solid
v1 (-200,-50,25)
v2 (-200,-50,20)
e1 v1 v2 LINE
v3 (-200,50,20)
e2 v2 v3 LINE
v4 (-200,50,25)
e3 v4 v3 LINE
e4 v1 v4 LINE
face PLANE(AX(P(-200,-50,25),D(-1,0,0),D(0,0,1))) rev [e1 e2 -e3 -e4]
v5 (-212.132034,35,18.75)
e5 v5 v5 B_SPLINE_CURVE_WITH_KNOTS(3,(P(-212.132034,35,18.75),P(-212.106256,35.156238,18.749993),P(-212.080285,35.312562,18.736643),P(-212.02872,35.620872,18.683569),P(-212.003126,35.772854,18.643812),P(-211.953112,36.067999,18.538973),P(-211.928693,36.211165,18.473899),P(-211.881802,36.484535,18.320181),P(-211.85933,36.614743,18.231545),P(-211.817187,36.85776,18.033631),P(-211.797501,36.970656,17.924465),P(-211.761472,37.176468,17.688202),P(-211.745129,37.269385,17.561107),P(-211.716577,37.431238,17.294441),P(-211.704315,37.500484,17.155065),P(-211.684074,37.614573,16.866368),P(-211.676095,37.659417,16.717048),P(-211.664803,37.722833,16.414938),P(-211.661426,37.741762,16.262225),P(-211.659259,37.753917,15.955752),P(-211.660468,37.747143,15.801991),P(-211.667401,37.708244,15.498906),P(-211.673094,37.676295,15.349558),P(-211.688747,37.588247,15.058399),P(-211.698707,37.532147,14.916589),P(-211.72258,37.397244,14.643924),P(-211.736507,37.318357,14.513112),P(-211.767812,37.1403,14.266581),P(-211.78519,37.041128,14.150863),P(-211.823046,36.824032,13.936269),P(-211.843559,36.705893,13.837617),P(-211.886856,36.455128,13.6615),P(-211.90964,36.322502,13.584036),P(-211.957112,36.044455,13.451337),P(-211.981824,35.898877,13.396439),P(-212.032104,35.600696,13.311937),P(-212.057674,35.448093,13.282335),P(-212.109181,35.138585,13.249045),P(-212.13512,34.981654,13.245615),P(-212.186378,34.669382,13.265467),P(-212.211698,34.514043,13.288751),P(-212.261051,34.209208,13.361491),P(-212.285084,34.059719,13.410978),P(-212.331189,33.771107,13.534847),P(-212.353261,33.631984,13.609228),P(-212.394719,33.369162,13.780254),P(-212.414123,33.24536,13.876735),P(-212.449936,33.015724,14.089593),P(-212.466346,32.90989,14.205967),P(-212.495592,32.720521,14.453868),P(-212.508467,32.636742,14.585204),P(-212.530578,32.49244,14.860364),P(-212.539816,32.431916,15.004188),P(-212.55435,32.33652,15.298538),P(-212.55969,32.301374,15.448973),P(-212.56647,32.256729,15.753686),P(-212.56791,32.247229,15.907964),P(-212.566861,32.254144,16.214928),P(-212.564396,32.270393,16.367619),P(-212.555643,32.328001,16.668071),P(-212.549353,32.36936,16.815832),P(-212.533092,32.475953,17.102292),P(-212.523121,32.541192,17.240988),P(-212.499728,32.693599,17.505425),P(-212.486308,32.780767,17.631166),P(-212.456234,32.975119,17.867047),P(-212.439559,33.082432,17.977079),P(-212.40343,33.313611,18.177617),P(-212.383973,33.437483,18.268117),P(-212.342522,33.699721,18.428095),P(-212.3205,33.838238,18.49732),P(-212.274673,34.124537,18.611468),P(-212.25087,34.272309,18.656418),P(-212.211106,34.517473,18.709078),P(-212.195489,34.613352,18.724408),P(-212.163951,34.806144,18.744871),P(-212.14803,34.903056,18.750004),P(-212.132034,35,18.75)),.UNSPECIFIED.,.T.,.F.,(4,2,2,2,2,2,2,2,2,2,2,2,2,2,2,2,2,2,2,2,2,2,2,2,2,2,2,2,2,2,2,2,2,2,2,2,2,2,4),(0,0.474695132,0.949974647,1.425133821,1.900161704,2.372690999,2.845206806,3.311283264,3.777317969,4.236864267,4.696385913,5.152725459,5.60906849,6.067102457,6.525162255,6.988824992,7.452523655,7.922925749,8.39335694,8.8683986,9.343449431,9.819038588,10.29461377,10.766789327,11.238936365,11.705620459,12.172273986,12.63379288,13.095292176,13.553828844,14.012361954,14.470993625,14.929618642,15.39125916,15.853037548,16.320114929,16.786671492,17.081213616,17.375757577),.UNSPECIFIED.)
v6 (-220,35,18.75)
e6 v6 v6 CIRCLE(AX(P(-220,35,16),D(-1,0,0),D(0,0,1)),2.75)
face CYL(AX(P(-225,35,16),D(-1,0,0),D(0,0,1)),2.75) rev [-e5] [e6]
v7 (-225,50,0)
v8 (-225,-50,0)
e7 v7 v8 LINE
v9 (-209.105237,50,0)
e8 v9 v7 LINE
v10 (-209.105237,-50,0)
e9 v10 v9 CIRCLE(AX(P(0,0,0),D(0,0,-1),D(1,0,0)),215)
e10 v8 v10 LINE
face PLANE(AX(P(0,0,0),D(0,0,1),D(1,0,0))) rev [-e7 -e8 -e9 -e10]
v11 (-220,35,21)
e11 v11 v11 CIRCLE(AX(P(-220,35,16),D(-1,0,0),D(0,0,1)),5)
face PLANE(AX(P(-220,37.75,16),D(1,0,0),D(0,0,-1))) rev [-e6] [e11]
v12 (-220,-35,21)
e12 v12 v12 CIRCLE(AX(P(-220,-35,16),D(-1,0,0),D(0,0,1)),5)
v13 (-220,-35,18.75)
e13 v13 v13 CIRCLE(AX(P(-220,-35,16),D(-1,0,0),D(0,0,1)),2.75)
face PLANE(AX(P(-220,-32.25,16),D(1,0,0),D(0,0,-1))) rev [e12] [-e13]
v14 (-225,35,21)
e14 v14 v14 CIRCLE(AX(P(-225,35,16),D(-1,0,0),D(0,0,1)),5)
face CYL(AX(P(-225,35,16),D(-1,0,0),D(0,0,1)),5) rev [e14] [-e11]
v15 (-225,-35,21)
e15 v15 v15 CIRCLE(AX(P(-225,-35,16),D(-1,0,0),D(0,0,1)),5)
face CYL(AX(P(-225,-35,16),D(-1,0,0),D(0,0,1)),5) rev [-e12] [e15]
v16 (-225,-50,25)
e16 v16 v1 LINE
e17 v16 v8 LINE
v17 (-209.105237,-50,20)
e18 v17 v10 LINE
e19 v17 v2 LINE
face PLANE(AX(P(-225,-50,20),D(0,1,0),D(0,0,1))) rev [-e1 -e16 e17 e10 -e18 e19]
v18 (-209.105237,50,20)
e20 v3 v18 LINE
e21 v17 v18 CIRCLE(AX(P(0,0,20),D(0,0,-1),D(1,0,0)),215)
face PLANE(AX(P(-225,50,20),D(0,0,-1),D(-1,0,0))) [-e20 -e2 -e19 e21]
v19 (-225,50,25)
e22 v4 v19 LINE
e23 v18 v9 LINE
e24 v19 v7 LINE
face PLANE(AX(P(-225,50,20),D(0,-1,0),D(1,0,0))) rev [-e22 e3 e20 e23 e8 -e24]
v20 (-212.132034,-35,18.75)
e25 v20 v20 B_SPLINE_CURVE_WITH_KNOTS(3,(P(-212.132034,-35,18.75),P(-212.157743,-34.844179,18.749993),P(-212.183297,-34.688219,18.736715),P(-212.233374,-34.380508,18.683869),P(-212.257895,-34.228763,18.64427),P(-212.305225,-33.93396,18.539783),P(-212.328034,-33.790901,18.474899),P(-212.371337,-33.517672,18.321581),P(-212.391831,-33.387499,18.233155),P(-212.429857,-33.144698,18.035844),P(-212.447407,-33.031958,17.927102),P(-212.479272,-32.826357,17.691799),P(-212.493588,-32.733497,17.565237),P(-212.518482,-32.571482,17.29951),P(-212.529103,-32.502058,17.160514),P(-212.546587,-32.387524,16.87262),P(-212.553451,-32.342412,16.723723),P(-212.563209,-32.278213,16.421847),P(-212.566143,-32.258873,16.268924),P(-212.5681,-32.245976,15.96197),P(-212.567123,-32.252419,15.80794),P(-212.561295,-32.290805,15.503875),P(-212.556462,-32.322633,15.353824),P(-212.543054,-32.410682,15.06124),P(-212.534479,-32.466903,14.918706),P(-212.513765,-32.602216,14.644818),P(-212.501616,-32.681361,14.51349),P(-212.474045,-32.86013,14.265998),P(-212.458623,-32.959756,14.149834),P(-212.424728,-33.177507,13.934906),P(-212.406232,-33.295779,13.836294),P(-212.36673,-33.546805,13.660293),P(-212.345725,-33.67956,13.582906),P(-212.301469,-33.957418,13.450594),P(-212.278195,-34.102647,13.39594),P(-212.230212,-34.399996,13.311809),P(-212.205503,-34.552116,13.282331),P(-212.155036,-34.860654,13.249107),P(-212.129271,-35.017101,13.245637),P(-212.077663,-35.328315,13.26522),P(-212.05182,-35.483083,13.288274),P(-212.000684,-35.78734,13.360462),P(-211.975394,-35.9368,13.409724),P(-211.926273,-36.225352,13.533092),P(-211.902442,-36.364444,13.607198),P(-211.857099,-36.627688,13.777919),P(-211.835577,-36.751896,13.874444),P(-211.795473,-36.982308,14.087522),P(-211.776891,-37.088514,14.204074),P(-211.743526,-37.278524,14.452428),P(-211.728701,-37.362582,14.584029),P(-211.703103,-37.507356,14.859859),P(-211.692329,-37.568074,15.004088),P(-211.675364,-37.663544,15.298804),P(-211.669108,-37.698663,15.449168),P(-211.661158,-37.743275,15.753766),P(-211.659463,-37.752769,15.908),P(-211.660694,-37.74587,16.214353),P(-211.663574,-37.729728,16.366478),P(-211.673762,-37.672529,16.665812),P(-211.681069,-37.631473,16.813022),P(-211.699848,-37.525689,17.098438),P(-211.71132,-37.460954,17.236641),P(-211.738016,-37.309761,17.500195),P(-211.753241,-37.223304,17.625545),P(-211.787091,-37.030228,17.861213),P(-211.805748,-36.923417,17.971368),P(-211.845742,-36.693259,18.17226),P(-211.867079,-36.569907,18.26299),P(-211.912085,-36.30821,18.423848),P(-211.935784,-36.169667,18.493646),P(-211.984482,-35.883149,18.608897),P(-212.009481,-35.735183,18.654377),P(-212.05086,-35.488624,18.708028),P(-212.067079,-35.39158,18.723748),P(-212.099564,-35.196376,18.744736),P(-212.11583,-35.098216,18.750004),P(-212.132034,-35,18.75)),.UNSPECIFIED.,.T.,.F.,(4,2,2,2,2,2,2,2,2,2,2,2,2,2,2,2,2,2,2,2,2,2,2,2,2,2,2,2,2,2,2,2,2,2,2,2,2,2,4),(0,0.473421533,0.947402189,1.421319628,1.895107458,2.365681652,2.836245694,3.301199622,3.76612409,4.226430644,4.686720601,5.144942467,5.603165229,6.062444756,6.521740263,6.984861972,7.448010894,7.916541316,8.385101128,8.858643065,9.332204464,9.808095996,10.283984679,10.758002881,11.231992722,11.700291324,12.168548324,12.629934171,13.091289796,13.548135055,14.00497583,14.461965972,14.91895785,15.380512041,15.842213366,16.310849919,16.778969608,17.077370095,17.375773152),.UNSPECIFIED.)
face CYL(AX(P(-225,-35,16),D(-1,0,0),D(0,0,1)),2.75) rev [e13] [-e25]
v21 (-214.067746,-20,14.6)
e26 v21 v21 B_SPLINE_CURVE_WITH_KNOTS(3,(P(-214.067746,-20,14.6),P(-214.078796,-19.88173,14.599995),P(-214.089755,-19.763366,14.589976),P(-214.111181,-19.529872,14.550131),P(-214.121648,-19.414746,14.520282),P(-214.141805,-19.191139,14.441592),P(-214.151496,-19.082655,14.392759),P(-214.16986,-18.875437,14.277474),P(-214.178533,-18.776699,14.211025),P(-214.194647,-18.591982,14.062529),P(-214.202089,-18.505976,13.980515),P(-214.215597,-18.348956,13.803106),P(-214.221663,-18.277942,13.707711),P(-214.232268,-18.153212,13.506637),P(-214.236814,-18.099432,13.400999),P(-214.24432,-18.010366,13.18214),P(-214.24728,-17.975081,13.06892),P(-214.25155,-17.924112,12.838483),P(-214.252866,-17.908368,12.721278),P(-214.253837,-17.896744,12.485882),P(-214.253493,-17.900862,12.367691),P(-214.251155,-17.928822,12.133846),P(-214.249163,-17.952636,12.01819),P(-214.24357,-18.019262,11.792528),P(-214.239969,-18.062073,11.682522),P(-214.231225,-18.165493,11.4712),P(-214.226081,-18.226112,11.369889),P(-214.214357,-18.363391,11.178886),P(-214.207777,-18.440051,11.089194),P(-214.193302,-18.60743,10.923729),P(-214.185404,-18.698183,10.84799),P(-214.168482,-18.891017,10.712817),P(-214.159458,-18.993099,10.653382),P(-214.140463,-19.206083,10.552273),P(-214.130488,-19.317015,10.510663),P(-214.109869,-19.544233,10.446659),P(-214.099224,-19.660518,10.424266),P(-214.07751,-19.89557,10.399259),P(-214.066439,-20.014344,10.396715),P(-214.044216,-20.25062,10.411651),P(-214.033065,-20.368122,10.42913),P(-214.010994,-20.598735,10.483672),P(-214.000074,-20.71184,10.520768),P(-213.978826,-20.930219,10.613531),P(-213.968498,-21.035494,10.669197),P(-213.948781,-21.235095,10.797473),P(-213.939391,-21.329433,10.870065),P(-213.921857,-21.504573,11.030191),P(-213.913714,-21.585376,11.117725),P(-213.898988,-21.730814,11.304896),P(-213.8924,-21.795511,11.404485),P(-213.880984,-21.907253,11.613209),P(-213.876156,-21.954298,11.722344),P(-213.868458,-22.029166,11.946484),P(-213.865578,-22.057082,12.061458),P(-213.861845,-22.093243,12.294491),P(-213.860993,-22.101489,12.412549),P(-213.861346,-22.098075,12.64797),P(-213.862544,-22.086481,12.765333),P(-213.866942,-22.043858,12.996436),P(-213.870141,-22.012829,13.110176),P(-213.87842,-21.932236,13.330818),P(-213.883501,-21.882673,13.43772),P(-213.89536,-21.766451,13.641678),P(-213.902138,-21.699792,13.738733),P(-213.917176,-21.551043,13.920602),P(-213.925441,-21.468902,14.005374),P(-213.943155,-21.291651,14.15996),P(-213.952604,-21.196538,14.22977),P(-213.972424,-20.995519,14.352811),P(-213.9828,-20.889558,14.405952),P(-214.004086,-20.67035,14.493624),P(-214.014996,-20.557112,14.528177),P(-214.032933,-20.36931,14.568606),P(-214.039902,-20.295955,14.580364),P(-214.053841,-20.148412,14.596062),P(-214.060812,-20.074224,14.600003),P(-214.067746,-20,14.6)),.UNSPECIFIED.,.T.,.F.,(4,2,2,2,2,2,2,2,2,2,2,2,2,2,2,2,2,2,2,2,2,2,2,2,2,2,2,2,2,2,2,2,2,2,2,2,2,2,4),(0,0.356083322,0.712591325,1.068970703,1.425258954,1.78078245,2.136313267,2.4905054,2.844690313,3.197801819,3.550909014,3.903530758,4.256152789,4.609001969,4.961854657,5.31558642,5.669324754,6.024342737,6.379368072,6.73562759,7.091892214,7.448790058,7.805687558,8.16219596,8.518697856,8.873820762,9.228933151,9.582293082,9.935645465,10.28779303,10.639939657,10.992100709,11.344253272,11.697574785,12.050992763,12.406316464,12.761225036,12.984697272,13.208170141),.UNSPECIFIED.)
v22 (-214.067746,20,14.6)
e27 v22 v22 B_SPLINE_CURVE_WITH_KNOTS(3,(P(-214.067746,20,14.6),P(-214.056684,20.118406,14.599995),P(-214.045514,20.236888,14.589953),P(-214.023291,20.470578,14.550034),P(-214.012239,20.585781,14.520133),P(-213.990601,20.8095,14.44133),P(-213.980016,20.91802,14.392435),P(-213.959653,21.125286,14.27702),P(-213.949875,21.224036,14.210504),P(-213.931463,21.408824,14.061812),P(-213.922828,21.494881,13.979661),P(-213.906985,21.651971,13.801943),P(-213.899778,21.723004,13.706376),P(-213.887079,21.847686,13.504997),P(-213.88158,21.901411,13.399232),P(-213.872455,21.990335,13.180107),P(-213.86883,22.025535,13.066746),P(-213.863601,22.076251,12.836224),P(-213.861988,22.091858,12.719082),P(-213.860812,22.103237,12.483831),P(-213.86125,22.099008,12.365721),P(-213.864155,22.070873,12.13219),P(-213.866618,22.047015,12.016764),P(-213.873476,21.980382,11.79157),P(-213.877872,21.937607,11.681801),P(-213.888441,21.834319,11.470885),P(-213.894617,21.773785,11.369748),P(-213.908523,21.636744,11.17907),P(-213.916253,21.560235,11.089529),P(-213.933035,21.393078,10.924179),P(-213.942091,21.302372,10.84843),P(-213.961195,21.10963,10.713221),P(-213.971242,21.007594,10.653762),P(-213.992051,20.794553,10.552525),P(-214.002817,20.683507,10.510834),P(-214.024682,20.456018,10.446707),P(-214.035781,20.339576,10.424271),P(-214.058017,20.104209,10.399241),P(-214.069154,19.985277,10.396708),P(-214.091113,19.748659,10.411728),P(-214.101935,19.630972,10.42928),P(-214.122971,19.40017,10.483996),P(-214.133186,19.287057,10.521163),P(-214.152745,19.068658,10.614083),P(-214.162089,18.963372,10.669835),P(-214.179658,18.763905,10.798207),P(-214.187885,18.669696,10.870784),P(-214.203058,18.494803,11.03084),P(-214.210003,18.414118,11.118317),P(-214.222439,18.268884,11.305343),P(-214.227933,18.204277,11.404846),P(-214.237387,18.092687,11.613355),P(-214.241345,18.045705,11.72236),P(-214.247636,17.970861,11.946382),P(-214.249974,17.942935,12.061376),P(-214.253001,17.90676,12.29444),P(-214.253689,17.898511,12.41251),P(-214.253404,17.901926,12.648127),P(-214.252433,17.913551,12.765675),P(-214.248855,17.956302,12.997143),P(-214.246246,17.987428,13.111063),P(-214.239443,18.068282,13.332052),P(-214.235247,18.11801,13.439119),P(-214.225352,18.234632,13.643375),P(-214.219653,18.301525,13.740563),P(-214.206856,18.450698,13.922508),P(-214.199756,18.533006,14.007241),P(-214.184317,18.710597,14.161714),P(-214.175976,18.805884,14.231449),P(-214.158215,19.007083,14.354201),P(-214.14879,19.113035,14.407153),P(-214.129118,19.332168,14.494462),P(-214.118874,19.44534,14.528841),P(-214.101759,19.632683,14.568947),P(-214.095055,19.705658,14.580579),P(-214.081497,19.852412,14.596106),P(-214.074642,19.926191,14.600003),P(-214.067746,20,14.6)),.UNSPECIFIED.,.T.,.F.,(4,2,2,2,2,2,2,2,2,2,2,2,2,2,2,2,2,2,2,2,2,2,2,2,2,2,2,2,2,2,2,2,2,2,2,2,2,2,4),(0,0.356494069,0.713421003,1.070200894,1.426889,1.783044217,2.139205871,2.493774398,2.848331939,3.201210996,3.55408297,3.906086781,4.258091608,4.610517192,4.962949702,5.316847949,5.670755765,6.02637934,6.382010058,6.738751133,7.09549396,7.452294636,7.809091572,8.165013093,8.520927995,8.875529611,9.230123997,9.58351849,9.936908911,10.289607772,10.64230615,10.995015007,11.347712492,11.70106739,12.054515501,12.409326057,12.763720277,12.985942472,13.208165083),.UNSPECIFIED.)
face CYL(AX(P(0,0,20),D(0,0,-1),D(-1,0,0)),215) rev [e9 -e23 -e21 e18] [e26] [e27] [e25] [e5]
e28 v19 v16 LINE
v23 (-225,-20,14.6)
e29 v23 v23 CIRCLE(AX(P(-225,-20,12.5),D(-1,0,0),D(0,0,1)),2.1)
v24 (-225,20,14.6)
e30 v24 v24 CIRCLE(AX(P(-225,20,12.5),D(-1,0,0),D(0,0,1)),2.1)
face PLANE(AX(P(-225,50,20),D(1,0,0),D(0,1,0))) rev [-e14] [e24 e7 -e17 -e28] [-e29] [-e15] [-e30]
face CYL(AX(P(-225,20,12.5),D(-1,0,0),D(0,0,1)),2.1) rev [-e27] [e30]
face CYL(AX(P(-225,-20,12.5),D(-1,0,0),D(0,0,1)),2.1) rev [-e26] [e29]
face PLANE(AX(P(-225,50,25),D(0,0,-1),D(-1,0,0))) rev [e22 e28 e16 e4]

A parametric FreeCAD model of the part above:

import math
import FreeCAD as App
import Part
import Sketcher
from FreeCAD import Vector


def add_polygon(sketch, points):
    """Adds a closed chain of lines whose ends are joined by coincident constraints."""
    first, n = sketch.GeometryCount, len(points)
    for a, b in zip(points, points[1:] + points[:1]):
        sketch.addGeometry(Part.LineSegment(App.Vector(*a, 0), App.Vector(*b, 0)), False)
    for i in range(n):
        sketch.addConstraint(Sketcher.Constraint("Coincident", first + i, 2, first + (i + 1) % n, 1))

doc = App.newDocument("Part")
body = doc.addObject("PartDesign::Body", "Body")

# Sketch on XY plane
sketch1 = body.newObject("Sketcher::SketchObject", "Sketch")
sketch1.AttachmentSupport = (doc.getObject("XY_Plane"), [""])
sketch1.MapMode = "FlatFace"
sketch1.addGeometry([
    Part.LineSegment(Vector(-225, 50, 0), Vector(-225, -50, 0)),
    Part.LineSegment(Vector(-225, -50, 0), Vector(-209, -50, 0)),
    Part.ArcOfCircle(Part.Circle(Vector(0, 0, 0), Vector(0, 0, 1), 215), math.radians(167), math.radians(193)),
    Part.LineSegment(Vector(-209, 50, 0), Vector(-225, 50, 0)),
], False)
sketch1.addConstraint([
    Sketcher.Constraint("Coincident", 0, 2, 1, 1),
    Sketcher.Constraint("Coincident", 1, 2, 2, 2),
    Sketcher.Constraint("Coincident", 2, 1, 3, 1),
    Sketcher.Constraint("Coincident", 3, 2, 0, 1),
    Sketcher.Constraint("Vertical", 0),
    Sketcher.Constraint("Horizontal", 1),
    Sketcher.Constraint("Horizontal", 3),
    Sketcher.Constraint("Coincident", 2, 3, -1, 1),
    Sketcher.Constraint("Vertical", 1, 2, 2, 1),
    Sketcher.Constraint("Radius", 2, 215.0),
    Sketcher.Constraint("DistanceY", 0, 2, 0, 1, 100.0),
    Sketcher.Constraint("DistanceX", 0, 2, -1, 1, 225.0),
])
pad1 = body.newObject("PartDesign::Pad", "Pad")
pad1.Profile = sketch1
pad1.Length = 20

# Sketch on XY plane
sketch2 = body.newObject("Sketcher::SketchObject", "Sketch001")
sketch2.AttachmentSupport = (doc.getObject("XY_Plane"), [""])
sketch2.MapMode = "FlatFace"
sketch2.AttachmentOffset = App.Placement(Vector(0, 0, 20), App.Rotation())
add_polygon(sketch2, [(-225, 50), (-225, -50), (-200, -50), (-200, 50)])  # lines 0-3
sketch2.addConstraint([
    Sketcher.Constraint("Vertical", 0),
    Sketcher.Constraint("Horizontal", 1),
    Sketcher.Constraint("Vertical", 2),
    Sketcher.Constraint("Horizontal", 3),
    Sketcher.Constraint("DistanceX", 1, 1, 1, 2, 25.0),
    Sketcher.Constraint("DistanceY", 0, 2, 0, 1, 100.0),
    Sketcher.Constraint("DistanceX", 0, 2, -1, 1, 225.0),
    Sketcher.Constraint("DistanceY", 0, 2, -1, 1, 50.0),
])
pad2 = body.newObject("PartDesign::Pad", "Pad001")
pad2.Profile = sketch2
pad2.Length = 5

# Sketch on YZ plane
sketch3 = body.newObject("Sketcher::SketchObject", "Sketch002")
sketch3.AttachmentSupport = (doc.getObject("YZ_Plane"), [""])
sketch3.MapMode = "FlatFace"
sketch3.AttachmentOffset = App.Placement(Vector(0, 0, -225), App.Rotation())
sketch3.addGeometry(Part.Circle(Vector(35, 16, 0), Vector(0, 0, 1), 2.8), False)
sketch3.addConstraint([
    Sketcher.Constraint("Diameter", 0, 5.5),
    Sketcher.Constraint("DistanceX", -1, 1, 0, 3, 35.0),
    Sketcher.Constraint("DistanceY", -1, 1, 0, 3, 16.0),
])
doc.recompute()
hole = body.newObject("PartDesign::Hole", "Hole")
hole.Profile = sketch3
hole.ThreadType = "None"
hole.Diameter = 5.5
hole.DepthType = "ThroughAll"
hole.HoleCutType = "Counterbore"
hole.HoleCutDiameter = 10
hole.HoleCutDepth = 5
hole.Reversed = True

# Sketch on YZ plane
sketch4 = body.newObject("Sketcher::SketchObject", "Sketch003")
sketch4.AttachmentSupport = (doc.getObject("YZ_Plane"), [""])
sketch4.MapMode = "FlatFace"
sketch4.AttachmentOffset = App.Placement(Vector(0, 0, -225), App.Rotation())
sketch4.addGeometry(Part.Circle(Vector(-35, 16, 0), Vector(0, 0, 1), 2.8), False)
sketch4.addConstraint([
    Sketcher.Constraint("Diameter", 0, 5.5),
    Sketcher.Constraint("DistanceX", 0, 3, -1, 1, 35.0),
    Sketcher.Constraint("DistanceY", -1, 1, 0, 3, 16.0),
])
doc.recompute()
hole2 = body.newObject("PartDesign::Hole", "Hole001")
hole2.Profile = sketch4
hole2.ThreadType = "None"
hole2.Diameter = 5.5
hole2.DepthType = "ThroughAll"
hole2.HoleCutType = "Counterbore"
hole2.HoleCutDiameter = 10
hole2.HoleCutDepth = 5
hole2.Reversed = True

# Sketch on YZ plane
sketch5 = body.newObject("Sketcher::SketchObject", "Sketch004")
sketch5.AttachmentSupport = (doc.getObject("YZ_Plane"), [""])
sketch5.MapMode = "FlatFace"
sketch5.AttachmentOffset = App.Placement(Vector(0, 0, -225), App.Rotation())
sketch5.addGeometry([
    Part.Circle(Vector(20, 12.5, 0), Vector(0, 0, 1), 2.1),
    Part.Circle(Vector(-20, 12.5, 0), Vector(0, 0, 1), 2.1),
], False)
sketch5.addConstraint([
    Sketcher.Constraint("Equal", 0, 1),
    Sketcher.Constraint("Symmetric", 0, 3, 1, 3, -2),
    Sketcher.Constraint("Diameter", 0, 4.2),
    Sketcher.Constraint("DistanceX", -1, 1, 0, 3, 20.0),
    Sketcher.Constraint("DistanceY", -1, 1, 0, 3, 12.5),
])
doc.recompute()
hole3 = body.newObject("PartDesign::Hole", "Hole002")
hole3.Profile = sketch5
hole3.ThreadType = "None"
hole3.Diameter = 4.2
hole3.DepthType = "ThroughAll"
hole3.Reversed = True

doc.recompute()
